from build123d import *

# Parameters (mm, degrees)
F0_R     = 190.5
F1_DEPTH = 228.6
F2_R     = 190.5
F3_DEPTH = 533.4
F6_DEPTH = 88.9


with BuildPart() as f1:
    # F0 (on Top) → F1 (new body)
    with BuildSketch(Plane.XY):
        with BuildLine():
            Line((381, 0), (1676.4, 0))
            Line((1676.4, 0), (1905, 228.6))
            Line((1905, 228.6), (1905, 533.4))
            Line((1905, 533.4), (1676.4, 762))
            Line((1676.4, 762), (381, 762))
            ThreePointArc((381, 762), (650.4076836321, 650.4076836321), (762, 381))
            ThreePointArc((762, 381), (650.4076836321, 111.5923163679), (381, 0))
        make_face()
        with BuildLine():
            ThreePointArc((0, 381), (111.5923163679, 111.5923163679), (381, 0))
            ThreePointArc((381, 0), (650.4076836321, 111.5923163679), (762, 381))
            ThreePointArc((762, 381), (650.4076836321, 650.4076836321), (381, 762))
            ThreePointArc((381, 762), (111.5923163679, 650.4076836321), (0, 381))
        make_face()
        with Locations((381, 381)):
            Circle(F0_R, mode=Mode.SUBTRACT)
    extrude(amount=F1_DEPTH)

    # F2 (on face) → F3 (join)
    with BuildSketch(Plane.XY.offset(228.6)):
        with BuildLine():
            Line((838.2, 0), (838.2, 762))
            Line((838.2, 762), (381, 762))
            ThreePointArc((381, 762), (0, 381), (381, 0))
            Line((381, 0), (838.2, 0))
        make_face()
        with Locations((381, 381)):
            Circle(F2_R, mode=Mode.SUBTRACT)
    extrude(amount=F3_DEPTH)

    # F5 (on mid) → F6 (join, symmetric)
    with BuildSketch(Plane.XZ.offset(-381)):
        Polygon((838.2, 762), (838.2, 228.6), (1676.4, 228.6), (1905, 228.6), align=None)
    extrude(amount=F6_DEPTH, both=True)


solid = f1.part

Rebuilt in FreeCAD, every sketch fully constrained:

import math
import FreeCAD as App
import Part
import Sketcher
from FreeCAD import Vector
Q = App.Units.Quantity

doc = App.newDocument("Part")
params = doc.addObject("Spreadsheet::Sheet", "Params")
for row, (alias, value) in enumerate([
    ("sketch1_diameter", "15 in"),
    ("sketch1_radius", "15 in"),
    ("sketch1_width", "51 in"),
    ("sketch1_height", "12 in"),
    ("pad1_length", "9 in"),
    ("sketch2_diameter", "15 in"),
    ("sketch2_radius", "15 in"),
    ("sketch2_width", "18 in"),
    ("pad2_length", "21 in"),
    ("sketch3_width", "42 in"),
    ("sketch3_height", "21 in"),
    ("pad3_length", "7 in"),
], start=1):
    params.set(f"A{row}", alias)
    params.set(f"B{row}", "=" + value)
    params.setAlias(f"B{row}", alias)

body = doc.addObject("PartDesign::Body", "Body")

# Sketch on XY plane
sketch1 = doc.addObject("Sketcher::SketchObject", "Sketch")
body.addObject(sketch1)
sketch1.AttachmentSupport = (doc.XY_Plane, [""])
sketch1.MapMode = "FlatFace"
sketch1.addGeometry(Part.LineSegment(Vector(381, 0, 0), Vector(1676.4, 0, 0)), False)
sketch1.addGeometry(Part.LineSegment(Vector(1676.4, 0, 0), Vector(1905, 228.6, 0)), False)
sketch1.addGeometry(Part.LineSegment(Vector(1905, 228.6, 0), Vector(1905, 533.4, 0)), False)
sketch1.addGeometry(Part.LineSegment(Vector(1905, 533.4, 0), Vector(1676.4, 762, 0)), False)
sketch1.addGeometry(Part.LineSegment(Vector(1676.4, 762, 0), Vector(381, 762, 0)), False)
sketch1.addGeometry(Part.ArcOfCircle(Part.Circle(Vector(381, 381, 0), Vector(0, 0, 1), 381), math.radians(90), math.radians(270)), False)
sketch1.addGeometry(Part.Circle(Vector(381, 381, 0), Vector(0, 0, 1), 190.5), False)
sketch1.addConstraint(Sketcher.Constraint("Coincident", 0, 2, 1, 1))
sketch1.addConstraint(Sketcher.Constraint("Coincident", 1, 2, 2, 1))
sketch1.addConstraint(Sketcher.Constraint("Coincident", 2, 2, 3, 1))
sketch1.addConstraint(Sketcher.Constraint("Coincident", 3, 2, 4, 1))
sketch1.addConstraint(Sketcher.Constraint("Tangent", 4, 2, 5, 1))
sketch1.addConstraint(Sketcher.Constraint("Tangent", 5, 2, 0, 1))
sketch1.addConstraint(Sketcher.Constraint("Horizontal", 0))
sketch1.addConstraint(Sketcher.Constraint("Vertical", 2))
sketch1.addConstraint(Sketcher.Constraint("Horizontal", 4))
sketch1.addConstraint(Sketcher.Constraint("Coincident", 6, 3, 5, 3))
sketch1.addConstraint(Sketcher.Constraint("PointOnObject", 0, 2, -1))
sketch1.addConstraint(Sketcher.Constraint("Perpendicular", 1, 3))
sketch1.addConstraint(Sketcher.Constraint("Vertical", 0, 2, 3, 2))
sketch1.addConstraint(Sketcher.Constraint("Equal", 1, 3))
sketch1.addConstraint(Sketcher.Constraint("Diameter", 6, Q("15 in")))
sketch1.addConstraint(Sketcher.Constraint("Radius", 5, Q("15 in")))
sketch1.addConstraint(Sketcher.Constraint("DistanceX", 0, 1, 0, 2, Q("51 in")))
sketch1.addConstraint(Sketcher.Constraint("DistanceY", 2, 1, 2, 2, Q("12 in")))
sketch1.addConstraint(Sketcher.Constraint("DistanceX", -1, 1, 5, 3, Q("15 in")))
sketch1.setExpression("Constraints[14]", "Params.sketch1_diameter")
sketch1.setExpression("Constraints[15]", "Params.sketch1_radius")
sketch1.setExpression("Constraints[16]", "Params.sketch1_width")
sketch1.setExpression("Constraints[17]", "Params.sketch1_height")
pad1 = doc.addObject("PartDesign::Pad", "Pad")
body.addObject(pad1)
pad1.Profile = sketch1
pad1.setExpression("Length", "Params.pad1_length")

# Sketch on XY plane
sketch2 = doc.addObject("Sketcher::SketchObject", "Sketch001")
body.addObject(sketch2)
sketch2.AttachmentSupport = (doc.XY_Plane, [""])
sketch2.MapMode = "FlatFace"
sketch2.AttachmentOffset = App.Placement(Vector(0, 0, 9 * 25.4), App.Rotation())
sketch2.addGeometry(Part.LineSegment(Vector(838.2, 0, 0), Vector(838.2, 762, 0)), False)
sketch2.addGeometry(Part.LineSegment(Vector(838.2, 762, 0), Vector(381, 762, 0)), False)
sketch2.addGeometry(Part.ArcOfCircle(Part.Circle(Vector(381, 381, 0), Vector(0, 0, 1), 381), math.radians(90), math.radians(270)), False)
sketch2.addGeometry(Part.LineSegment(Vector(381, 0, 0), Vector(838.2, 0, 0)), False)
sketch2.addGeometry(Part.Circle(Vector(381, 381, 0), Vector(0, 0, 1), 190.5), False)
sketch2.addConstraint(Sketcher.Constraint("Coincident", 0, 2, 1, 1))
sketch2.addConstraint(Sketcher.Constraint("Tangent", 1, 2, 2, 1))
sketch2.addConstraint(Sketcher.Constraint("Tangent", 2, 2, 3, 1))
sketch2.addConstraint(Sketcher.Constraint("Coincident", 3, 2, 0, 1))
sketch2.addConstraint(Sketcher.Constraint("Vertical", 0))
sketch2.addConstraint(Sketcher.Constraint("Horizontal", 1))
sketch2.addConstraint(Sketcher.Constraint("Horizontal", 3))
sketch2.addConstraint(Sketcher.Constraint("Coincident", 4, 3, 2, 3))
sketch2.addConstraint(Sketcher.Constraint("PointOnObject", 2, 2, -1))
sketch2.addConstraint(Sketcher.Constraint("Diameter", 4, Q("15 in")))
sketch2.addConstraint(Sketcher.Constraint("Radius", 2, Q("15 in")))
sketch2.addConstraint(Sketcher.Constraint("DistanceX", 1, 2, 1, 1, Q("18 in")))
sketch2.addConstraint(Sketcher.Constraint("DistanceX", -1, 1, 2, 3, Q("15 in")))
sketch2.setExpression("Constraints[9]", "Params.sketch2_diameter")
sketch2.setExpression("Constraints[10]", "Params.sketch2_radius")
sketch2.setExpression("Constraints[11]", "Params.sketch2_width")
pad2 = doc.addObject("PartDesign::Pad", "Pad001")
body.addObject(pad2)
pad2.Profile = sketch2
pad2.setExpression("Length", "Params.pad2_length")

# Sketch on XZ plane
sketch3 = doc.addObject("Sketcher::SketchObject", "Sketch002")
body.addObject(sketch3)
sketch3.AttachmentSupport = (doc.XZ_Plane, [""])
sketch3.MapMode = "FlatFace"
sketch3.AttachmentOffset = App.Placement(Vector(0, 0, -15 * 25.4), App.Rotation())
sketch3.addGeometry(Part.LineSegment(Vector(838.2, 762, 0), Vector(838.2, 228.6, 0)), False)
sketch3.addGeometry(Part.LineSegment(Vector(838.2, 228.6, 0), Vector(1905, 228.6, 0)), False)
sketch3.addGeometry(Part.LineSegment(Vector(1905, 228.6, 0), Vector(838.2, 762, 0)), False)
sketch3.addConstraint(Sketcher.Constraint("Coincident", 0, 2, 1, 1))
sketch3.addConstraint(Sketcher.Constraint("Coincident", 1, 2, 2, 1))
sketch3.addConstraint(Sketcher.Constraint("Coincident", 2, 2, 0, 1))
sketch3.addConstraint(Sketcher.Constraint("Vertical", 0))
sketch3.addConstraint(Sketcher.Constraint("Horizontal", 1))
sketch3.addConstraint(Sketcher.Constraint("DistanceX", 1, 1, 1, 2, Q("42 in")))
sketch3.addConstraint(Sketcher.Constraint("DistanceY", 0, 2, 0, 1, Q("21 in")))
sketch3.addConstraint(Sketcher.Constraint("DistanceX", -1, 1, 0, 2, Q("33 in")))
sketch3.addConstraint(Sketcher.Constraint("DistanceY", -1, 1, 0, 2, Q("9 in")))
sketch3.setExpression("Constraints[5]", "Params.sketch3_width")
sketch3.setExpression("Constraints[6]", "Params.sketch3_height")
pad3 = doc.addObject("PartDesign::Pad", "Pad002")
body.addObject(pad3)
pad3.Profile = sketch3
pad3.setExpression("Length", "Params.pad3_length")
pad3.Midplane = True

doc.recompute()
